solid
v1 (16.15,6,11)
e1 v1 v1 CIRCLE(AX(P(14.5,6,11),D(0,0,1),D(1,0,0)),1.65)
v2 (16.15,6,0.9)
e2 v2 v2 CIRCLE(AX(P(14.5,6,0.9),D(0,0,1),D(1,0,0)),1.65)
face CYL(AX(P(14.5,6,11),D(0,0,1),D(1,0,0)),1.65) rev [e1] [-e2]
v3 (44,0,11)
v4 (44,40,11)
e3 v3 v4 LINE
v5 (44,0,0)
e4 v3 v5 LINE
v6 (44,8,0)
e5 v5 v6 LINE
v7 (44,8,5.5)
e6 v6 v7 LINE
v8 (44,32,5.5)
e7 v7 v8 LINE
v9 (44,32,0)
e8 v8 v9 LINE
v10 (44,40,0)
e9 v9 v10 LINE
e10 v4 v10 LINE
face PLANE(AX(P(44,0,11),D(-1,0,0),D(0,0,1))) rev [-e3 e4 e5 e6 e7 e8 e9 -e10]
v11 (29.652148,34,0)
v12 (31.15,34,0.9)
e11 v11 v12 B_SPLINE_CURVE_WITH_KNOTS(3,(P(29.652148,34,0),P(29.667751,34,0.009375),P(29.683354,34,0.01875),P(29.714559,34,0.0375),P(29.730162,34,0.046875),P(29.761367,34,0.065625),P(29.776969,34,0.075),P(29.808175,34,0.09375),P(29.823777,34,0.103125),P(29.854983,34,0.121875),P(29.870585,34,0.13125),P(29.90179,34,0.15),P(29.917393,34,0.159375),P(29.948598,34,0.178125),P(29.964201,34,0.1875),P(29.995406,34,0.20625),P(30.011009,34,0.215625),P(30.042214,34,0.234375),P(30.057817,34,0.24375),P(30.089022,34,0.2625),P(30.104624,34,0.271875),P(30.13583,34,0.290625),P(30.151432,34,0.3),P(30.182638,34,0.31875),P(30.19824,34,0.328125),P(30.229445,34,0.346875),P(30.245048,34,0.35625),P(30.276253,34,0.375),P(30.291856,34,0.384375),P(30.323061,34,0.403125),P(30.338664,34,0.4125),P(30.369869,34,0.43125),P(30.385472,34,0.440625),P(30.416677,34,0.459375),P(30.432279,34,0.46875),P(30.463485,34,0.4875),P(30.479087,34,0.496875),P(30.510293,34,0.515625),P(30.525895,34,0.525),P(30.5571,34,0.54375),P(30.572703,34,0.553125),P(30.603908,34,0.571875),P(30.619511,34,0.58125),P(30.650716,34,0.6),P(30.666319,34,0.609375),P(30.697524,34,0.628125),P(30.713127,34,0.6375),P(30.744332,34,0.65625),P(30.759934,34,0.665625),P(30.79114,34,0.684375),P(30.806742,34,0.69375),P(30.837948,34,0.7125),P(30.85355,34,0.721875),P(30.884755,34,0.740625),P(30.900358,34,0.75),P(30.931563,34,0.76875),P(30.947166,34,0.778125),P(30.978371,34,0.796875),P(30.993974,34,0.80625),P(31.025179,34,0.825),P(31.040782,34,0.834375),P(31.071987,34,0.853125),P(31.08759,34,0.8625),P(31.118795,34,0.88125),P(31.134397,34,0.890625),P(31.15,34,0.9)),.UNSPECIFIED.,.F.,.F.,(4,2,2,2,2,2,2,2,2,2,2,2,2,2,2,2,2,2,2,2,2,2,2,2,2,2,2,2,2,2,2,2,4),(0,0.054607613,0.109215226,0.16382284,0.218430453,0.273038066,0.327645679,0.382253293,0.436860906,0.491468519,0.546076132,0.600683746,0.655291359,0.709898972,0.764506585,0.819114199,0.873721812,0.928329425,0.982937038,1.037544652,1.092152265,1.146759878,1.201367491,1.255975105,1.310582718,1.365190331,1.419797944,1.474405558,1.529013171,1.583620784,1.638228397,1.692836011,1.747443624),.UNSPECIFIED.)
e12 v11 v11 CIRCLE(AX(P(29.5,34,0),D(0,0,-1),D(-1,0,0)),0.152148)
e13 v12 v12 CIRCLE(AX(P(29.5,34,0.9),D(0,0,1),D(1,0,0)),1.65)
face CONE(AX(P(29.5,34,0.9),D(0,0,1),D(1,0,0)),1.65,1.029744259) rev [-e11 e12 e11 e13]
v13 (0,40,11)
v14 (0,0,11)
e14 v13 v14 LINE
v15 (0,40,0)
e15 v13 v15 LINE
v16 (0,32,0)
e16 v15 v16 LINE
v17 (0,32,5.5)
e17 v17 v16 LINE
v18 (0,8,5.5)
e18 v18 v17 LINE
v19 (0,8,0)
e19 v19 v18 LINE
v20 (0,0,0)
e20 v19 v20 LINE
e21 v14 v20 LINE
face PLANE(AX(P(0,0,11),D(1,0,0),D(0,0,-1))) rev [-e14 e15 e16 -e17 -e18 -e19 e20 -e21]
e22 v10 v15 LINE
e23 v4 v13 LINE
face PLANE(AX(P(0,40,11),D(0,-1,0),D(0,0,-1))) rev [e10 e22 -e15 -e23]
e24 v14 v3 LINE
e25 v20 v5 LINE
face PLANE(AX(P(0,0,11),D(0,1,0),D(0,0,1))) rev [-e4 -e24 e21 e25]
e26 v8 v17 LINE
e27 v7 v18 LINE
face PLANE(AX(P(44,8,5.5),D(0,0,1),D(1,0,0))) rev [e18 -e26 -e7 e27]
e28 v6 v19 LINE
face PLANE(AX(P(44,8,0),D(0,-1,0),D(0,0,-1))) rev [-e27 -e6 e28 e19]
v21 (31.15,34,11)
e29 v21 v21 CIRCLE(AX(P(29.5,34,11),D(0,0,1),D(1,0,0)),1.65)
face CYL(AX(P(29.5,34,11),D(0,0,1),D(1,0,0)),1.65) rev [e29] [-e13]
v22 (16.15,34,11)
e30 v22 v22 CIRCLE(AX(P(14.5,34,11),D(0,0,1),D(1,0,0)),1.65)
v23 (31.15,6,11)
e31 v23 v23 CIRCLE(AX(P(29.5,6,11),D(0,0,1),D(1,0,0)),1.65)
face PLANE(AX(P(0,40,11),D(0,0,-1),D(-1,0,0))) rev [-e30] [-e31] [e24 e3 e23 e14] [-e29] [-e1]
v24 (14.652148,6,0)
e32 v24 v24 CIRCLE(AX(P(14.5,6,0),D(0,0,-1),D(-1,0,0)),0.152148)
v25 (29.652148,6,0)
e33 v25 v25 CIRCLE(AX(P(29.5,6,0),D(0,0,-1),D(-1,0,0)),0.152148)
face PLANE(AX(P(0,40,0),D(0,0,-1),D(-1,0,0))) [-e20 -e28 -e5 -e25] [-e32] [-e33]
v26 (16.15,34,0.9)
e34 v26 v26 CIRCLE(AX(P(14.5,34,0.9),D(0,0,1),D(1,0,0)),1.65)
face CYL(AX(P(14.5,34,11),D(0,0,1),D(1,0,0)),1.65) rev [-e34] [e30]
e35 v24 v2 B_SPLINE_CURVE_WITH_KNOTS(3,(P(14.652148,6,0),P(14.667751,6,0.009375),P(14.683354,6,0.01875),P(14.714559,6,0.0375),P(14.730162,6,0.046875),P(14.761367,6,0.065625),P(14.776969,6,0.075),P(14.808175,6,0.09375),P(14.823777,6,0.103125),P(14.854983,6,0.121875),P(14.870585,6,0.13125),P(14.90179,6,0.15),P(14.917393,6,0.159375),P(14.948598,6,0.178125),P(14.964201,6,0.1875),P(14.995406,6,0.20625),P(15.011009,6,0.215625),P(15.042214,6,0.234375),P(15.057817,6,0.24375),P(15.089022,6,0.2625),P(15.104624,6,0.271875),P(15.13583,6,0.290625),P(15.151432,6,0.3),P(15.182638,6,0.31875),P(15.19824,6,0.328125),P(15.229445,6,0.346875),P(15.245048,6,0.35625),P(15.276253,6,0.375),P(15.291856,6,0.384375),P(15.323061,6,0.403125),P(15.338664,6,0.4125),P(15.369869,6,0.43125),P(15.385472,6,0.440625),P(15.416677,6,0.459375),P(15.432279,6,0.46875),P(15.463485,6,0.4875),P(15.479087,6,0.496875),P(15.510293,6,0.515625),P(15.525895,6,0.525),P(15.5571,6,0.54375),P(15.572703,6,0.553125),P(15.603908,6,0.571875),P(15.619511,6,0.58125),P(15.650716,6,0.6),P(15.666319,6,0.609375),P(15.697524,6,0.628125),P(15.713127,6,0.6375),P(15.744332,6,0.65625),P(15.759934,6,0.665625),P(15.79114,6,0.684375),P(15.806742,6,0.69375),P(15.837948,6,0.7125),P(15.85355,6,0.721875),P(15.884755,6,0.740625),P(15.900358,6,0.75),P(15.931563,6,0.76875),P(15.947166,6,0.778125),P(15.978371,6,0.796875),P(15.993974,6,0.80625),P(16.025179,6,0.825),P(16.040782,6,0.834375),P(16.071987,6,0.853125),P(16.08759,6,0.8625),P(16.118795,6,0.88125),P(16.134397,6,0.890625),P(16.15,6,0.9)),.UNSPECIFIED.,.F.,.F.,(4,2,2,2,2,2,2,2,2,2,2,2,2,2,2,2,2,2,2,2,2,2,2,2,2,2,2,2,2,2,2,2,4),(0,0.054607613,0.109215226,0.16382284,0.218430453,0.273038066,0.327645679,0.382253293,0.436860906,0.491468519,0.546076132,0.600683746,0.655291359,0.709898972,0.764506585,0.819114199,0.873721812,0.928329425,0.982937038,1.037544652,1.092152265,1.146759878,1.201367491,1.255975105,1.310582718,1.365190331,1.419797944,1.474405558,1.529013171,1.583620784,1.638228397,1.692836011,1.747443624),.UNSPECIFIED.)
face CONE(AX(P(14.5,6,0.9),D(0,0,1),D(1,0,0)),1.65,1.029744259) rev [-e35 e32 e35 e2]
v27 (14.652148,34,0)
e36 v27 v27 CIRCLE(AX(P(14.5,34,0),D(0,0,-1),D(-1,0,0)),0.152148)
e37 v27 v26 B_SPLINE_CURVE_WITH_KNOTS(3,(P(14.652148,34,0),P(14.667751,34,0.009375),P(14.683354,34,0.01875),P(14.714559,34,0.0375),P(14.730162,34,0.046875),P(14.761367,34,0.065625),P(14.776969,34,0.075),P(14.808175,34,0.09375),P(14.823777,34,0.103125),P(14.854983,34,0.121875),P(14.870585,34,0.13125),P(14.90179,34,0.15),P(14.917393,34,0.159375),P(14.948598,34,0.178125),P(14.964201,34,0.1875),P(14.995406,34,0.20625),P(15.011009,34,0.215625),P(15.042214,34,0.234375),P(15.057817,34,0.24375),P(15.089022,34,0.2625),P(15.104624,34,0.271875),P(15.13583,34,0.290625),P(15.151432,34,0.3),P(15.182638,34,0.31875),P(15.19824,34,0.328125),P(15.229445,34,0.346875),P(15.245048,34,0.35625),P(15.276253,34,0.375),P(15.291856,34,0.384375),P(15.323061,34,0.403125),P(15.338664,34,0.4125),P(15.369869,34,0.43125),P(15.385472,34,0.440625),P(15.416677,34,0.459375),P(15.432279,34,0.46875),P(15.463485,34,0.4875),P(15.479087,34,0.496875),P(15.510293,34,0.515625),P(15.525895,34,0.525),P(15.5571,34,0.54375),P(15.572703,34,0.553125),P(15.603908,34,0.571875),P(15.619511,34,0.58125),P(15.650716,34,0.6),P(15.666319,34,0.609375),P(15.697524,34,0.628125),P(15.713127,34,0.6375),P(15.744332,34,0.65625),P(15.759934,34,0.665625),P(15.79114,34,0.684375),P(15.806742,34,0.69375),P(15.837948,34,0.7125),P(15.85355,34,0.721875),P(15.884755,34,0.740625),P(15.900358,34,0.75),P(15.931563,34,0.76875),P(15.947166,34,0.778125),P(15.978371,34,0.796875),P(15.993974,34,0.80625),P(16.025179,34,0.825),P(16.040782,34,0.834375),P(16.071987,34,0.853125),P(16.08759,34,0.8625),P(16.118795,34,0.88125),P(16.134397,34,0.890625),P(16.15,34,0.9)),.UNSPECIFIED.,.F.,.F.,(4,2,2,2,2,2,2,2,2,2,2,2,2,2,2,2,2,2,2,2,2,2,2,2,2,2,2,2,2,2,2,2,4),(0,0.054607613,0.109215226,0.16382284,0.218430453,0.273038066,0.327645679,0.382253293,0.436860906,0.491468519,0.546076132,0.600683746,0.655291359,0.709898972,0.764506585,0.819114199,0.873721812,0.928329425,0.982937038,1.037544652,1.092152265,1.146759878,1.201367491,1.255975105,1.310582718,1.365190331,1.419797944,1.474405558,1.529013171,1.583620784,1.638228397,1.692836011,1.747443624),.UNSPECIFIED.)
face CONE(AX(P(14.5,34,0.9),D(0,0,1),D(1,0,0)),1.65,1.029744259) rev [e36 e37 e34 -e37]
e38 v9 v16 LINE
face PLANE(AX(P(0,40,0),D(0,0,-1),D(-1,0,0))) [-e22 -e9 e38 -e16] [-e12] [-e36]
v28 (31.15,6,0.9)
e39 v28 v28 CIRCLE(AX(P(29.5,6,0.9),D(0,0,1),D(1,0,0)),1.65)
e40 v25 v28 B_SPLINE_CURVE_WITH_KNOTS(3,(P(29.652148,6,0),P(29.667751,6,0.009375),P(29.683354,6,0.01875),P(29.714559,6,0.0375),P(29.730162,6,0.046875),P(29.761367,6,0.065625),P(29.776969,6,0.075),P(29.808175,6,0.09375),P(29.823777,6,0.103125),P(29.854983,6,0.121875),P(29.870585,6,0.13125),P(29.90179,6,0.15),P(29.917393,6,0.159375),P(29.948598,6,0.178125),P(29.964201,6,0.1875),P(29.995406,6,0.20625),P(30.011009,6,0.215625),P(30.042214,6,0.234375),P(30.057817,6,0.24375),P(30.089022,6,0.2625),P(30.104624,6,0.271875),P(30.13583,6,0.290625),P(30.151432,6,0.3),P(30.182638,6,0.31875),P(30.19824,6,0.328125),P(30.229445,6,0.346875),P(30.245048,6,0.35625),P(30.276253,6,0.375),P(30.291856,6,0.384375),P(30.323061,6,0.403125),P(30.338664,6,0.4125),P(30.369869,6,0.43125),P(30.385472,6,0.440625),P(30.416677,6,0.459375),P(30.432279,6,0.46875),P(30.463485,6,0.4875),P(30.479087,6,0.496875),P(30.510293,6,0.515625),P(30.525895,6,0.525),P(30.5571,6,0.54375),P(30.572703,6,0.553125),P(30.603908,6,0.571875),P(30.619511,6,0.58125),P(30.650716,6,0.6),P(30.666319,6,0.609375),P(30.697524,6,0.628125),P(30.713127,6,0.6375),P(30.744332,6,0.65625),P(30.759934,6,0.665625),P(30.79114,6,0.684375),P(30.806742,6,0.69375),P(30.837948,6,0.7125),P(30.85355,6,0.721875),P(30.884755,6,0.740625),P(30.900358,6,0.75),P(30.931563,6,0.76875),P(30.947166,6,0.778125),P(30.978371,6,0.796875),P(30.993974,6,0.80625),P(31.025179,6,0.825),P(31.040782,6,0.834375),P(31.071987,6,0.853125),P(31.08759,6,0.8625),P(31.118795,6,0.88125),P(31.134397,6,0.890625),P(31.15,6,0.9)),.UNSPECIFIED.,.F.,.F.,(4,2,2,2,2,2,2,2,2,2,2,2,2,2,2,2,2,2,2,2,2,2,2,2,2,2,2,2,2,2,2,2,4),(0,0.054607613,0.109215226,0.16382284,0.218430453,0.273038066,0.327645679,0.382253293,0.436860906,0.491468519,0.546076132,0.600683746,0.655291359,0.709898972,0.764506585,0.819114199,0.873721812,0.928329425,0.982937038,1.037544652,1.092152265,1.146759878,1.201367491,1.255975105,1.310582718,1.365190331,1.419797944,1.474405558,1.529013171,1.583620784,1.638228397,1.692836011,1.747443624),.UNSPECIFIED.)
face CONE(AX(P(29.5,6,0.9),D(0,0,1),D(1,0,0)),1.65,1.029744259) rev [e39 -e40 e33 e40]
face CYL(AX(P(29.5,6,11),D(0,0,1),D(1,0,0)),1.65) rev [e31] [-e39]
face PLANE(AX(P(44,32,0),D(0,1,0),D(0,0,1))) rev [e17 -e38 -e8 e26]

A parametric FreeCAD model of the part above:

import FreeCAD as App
import Part
import Sketcher

V = App.Vector

doc = App.newDocument("Part")
body = doc.addObject("PartDesign::Body", "Body")

# Sketch on XY plane
sketch1 = doc.addObject("Sketcher::SketchObject", "Sketch")
body.addObject(sketch1)
sketch1.AttachmentSupport = (doc.XY_Plane, [""])
sketch1.MapMode = "FlatFace"
sketch1.addGeometry(Part.LineSegment(V(0, 40, 0), V(0, 0, 0)), False)
sketch1.addGeometry(Part.LineSegment(V(0, 0, 0), V(44, 0, 0)), False)
sketch1.addGeometry(Part.LineSegment(V(44, 0, 0), V(44, 40, 0)), False)
sketch1.addGeometry(Part.LineSegment(V(44, 40, 0), V(0, 40, 0)), False)
sketch1.addConstraint(Sketcher.Constraint("Coincident", 0, 2, 1, 1))
sketch1.addConstraint(Sketcher.Constraint("Coincident", 1, 2, 2, 1))
sketch1.addConstraint(Sketcher.Constraint("Coincident", 2, 2, 3, 1))
sketch1.addConstraint(Sketcher.Constraint("Coincident", 3, 2, 0, 1))
sketch1.addConstraint(Sketcher.Constraint("Vertical", 0))
sketch1.addConstraint(Sketcher.Constraint("Horizontal", 1))
sketch1.addConstraint(Sketcher.Constraint("Vertical", 2))
sketch1.addConstraint(Sketcher.Constraint("Horizontal", 3))
sketch1.addConstraint(Sketcher.Constraint("Coincident", 0, 2, -1, 1))
sketch1.addConstraint(Sketcher.Constraint("DistanceX", 1, 1, 1, 2, 44.0))
sketch1.addConstraint(Sketcher.Constraint("DistanceY", 0, 2, 0, 1, 40.0))
pad1 = doc.addObject("PartDesign::Pad", "Pad")
body.addObject(pad1)
pad1.Profile = sketch1
pad1.Length = 11

# Sketch on YZ plane
sketch2 = doc.addObject("Sketcher::SketchObject", "Sketch001")
body.addObject(sketch2)
sketch2.AttachmentSupport = (doc.YZ_Plane, [""])
sketch2.MapMode = "FlatFace"
sketch2.addGeometry(Part.LineSegment(V(32, 0, 0), V(8, 0, 0)), False)
sketch2.addGeometry(Part.LineSegment(V(8, 0, 0), V(8, 6, 0)), False)
sketch2.addGeometry(Part.LineSegment(V(8, 6, 0), V(32, 6, 0)), False)
sketch2.addGeometry(Part.LineSegment(V(32, 6, 0), V(32, 0, 0)), False)
sketch2.addConstraint(Sketcher.Constraint("Coincident", 0, 2, 1, 1))
sketch2.addConstraint(Sketcher.Constraint("Coincident", 1, 2, 2, 1))
sketch2.addConstraint(Sketcher.Constraint("Coincident", 2, 2, 3, 1))
sketch2.addConstraint(Sketcher.Constraint("Coincident", 3, 2, 0, 1))
sketch2.addConstraint(Sketcher.Constraint("Horizontal", 0))
sketch2.addConstraint(Sketcher.Constraint("Vertical", 1))
sketch2.addConstraint(Sketcher.Constraint("Horizontal", 2))
sketch2.addConstraint(Sketcher.Constraint("Vertical", 3))
sketch2.addConstraint(Sketcher.Constraint("PointOnObject", 0, 2, -1))
sketch2.addConstraint(Sketcher.Constraint("DistanceX", 0, 2, 0, 1, 24.0))
sketch2.addConstraint(Sketcher.Constraint("DistanceY", 1, 1, 1, 2, 5.5))
sketch2.addConstraint(Sketcher.Constraint("DistanceX", -1, 1, 0, 2, 8.0))
pocket1 = doc.addObject("PartDesign::Pocket", "Pocket")
body.addObject(pocket1)
pocket1.Profile = sketch2
pocket1.Type = "ThroughAll"
pocket1.Reversed = True

# Sketch on XY plane
sketch3 = doc.addObject("Sketcher::SketchObject", "Sketch002")
body.addObject(sketch3)
sketch3.AttachmentSupport = (doc.XY_Plane, [""])
sketch3.MapMode = "FlatFace"
sketch3.AttachmentOffset = App.Placement(V(0, 0, 11), App.Rotation())
sketch3.addGeometry(Part.Circle(V(14.5, 34, 0), V(0, 0, 1), 1.6), False)
sketch3.addGeometry(Part.Circle(V(29.5, 34, 0), V(0, 0, 1), 1.6), False)
sketch3.addGeometry(Part.Circle(V(14.5, 6, 0), V(0, 0, 1), 1.6), False)
sketch3.addGeometry(Part.Circle(V(29.5, 6, 0), V(0, 0, 1), 1.6), False)
sketch3.addConstraint(Sketcher.Constraint("Equal", 0, 1))
sketch3.addConstraint(Sketcher.Constraint("Equal", 1, 2))
sketch3.addConstraint(Sketcher.Constraint("Equal", 2, 3))
sketch3.addConstraint(Sketcher.Constraint("Horizontal", 0, 3, 1, 3))
sketch3.addConstraint(Sketcher.Constraint("Horizontal", 2, 3, 3, 3))
sketch3.addConstraint(Sketcher.Constraint("Vertical", 0, 3, 2, 3))
sketch3.addConstraint(Sketcher.Constraint("Vertical", 1, 3, 3, 3))
sketch3.addConstraint(Sketcher.Constraint("Diameter", 0, 3.3))
sketch3.addConstraint(Sketcher.Constraint("DistanceY", -1, 1, 0, 3, 34.0))
sketch3.addConstraint(Sketcher.Constraint("DistanceY", -1, 1, 2, 3, 6.0))
sketch3.addConstraint(Sketcher.Constraint("DistanceX", 0, 3, 1, 3, 15.0))
sketch3.addConstraint(Sketcher.Constraint("DistanceX", -1, 1, 0, 3, 14.5))
doc.recompute()
hole = doc.addObject("PartDesign::Hole", "Hole")
body.addObject(hole)
hole.Profile = sketch3
hole.ThreadType = "None"
hole.Diameter = 3.3
hole.DepthType = "Dimension"
hole.Depth = 10.1
hole.DrillPoint = "Angled"
hole.DrillPointAngle = 118

doc.recompute()
